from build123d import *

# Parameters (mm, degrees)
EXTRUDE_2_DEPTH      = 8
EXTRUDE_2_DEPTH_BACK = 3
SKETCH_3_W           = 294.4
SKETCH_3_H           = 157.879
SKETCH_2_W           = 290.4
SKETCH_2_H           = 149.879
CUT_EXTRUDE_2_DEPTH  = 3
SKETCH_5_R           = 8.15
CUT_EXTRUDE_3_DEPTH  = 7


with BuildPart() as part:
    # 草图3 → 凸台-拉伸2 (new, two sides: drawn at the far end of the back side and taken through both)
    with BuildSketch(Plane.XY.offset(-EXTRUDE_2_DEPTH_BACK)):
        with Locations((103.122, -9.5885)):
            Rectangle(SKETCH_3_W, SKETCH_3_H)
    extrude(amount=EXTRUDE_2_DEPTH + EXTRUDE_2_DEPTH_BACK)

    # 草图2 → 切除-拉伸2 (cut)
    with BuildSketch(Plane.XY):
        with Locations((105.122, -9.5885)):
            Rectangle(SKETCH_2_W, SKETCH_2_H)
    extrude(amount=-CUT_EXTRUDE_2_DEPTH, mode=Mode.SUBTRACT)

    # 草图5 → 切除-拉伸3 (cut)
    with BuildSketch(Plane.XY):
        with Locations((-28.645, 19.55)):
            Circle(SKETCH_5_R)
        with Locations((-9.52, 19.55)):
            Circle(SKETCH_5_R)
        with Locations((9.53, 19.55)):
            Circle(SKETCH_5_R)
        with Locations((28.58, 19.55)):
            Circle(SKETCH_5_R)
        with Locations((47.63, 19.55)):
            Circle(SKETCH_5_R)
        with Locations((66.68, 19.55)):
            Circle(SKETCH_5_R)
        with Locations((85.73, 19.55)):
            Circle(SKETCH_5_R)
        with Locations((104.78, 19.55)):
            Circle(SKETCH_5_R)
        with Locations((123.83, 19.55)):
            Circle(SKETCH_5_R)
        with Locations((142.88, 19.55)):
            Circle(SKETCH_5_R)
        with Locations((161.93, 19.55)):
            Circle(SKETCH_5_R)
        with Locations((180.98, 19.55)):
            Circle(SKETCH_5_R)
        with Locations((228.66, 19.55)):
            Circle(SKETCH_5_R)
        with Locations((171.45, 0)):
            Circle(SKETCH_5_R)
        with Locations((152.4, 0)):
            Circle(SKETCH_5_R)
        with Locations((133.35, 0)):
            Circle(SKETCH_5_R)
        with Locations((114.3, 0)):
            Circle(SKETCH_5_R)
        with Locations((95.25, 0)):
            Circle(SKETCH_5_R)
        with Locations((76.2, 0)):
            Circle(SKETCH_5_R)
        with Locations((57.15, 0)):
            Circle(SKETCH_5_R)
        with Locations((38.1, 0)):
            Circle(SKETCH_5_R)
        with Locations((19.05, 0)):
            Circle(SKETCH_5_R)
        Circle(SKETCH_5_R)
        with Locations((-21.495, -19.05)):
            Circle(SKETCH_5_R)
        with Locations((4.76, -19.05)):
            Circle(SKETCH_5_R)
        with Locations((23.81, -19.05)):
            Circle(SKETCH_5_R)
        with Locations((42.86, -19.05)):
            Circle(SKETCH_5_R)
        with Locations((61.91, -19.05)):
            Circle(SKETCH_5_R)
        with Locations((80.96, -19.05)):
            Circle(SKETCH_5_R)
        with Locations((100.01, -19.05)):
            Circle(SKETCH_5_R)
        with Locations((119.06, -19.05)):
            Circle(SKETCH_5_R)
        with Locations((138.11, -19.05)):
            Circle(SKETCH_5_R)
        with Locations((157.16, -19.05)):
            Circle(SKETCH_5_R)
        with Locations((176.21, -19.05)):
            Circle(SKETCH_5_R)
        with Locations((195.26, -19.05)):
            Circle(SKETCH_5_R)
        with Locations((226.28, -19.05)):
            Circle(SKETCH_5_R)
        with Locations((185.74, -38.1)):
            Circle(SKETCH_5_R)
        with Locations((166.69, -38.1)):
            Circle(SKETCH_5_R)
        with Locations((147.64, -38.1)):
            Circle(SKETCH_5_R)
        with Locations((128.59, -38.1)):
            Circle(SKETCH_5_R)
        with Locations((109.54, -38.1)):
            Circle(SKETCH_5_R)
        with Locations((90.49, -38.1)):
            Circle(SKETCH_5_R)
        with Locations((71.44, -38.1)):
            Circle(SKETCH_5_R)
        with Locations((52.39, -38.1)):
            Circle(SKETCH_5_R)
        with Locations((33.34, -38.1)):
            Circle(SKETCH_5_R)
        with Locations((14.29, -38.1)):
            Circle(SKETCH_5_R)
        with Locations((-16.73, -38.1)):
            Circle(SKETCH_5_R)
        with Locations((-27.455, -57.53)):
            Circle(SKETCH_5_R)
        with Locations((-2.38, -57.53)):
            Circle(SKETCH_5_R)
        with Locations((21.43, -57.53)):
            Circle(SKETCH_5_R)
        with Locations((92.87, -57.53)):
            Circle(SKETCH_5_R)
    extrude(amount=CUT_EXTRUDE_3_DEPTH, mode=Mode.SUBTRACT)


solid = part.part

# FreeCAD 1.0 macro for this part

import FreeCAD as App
import Part
import Sketcher

V = App.Vector

doc = App.newDocument("Part")
body = doc.addObject("PartDesign::Body", "Body")

# Sketch on XY plane
sketch1 = doc.addObject("Sketcher::SketchObject", "Sketch")
body.addObject(sketch1)
sketch1.AttachmentSupport = (doc.XY_Plane, [""])
sketch1.MapMode = "FlatFace"
sketch1.addGeometry([
    Part.LineSegment(V(-44, 69, 0), V(-44, -89, 0)),
    Part.LineSegment(V(-44, -89, 0), V(250, -89, 0)),
    Part.LineSegment(V(250, -89, 0), V(250, 69, 0)),
    Part.LineSegment(V(250, 69, 0), V(-44, 69, 0)),
], False)
sketch1.addConstraint([
    Sketcher.Constraint("Coincident", 0, 2, 1, 1),
    Sketcher.Constraint("Coincident", 1, 2, 2, 1),
    Sketcher.Constraint("Coincident", 2, 2, 3, 1),
    Sketcher.Constraint("Coincident", 3, 2, 0, 1),
    Sketcher.Constraint("Vertical", 0),
    Sketcher.Constraint("Horizontal", 1),
    Sketcher.Constraint("Vertical", 2),
    Sketcher.Constraint("Horizontal", 3),
    Sketcher.Constraint("DistanceX", 1, 1, 1, 2, 294.4),
    Sketcher.Constraint("DistanceY", 0, 2, 0, 1, 157.879),
    Sketcher.Constraint("DistanceX", 0, 2, -1, 1, 44.078),
    Sketcher.Constraint("DistanceY", 0, 2, -1, 1, 88.528),
])
pad1 = doc.addObject("PartDesign::Pad", "Pad")
body.addObject(pad1)
pad1.Profile = sketch1
pad1.Type = "TwoLengths"
pad1.Length = 8
pad1.Length2 = 3

# Sketch on XY plane
sketch2 = doc.addObject("Sketcher::SketchObject", "Sketch001")
body.addObject(sketch2)
sketch2.AttachmentSupport = (doc.XY_Plane, [""])
sketch2.MapMode = "FlatFace"
sketch2.addGeometry([
    Part.LineSegment(V(-40, 65, 0), V(-40, -85, 0)),
    Part.LineSegment(V(-40, -85, 0), V(250, -85, 0)),
    Part.LineSegment(V(250, -85, 0), V(250, 65, 0)),
    Part.LineSegment(V(250, 65, 0), V(-40, 65, 0)),
], False)
sketch2.addConstraint([
    Sketcher.Constraint("Coincident", 0, 2, 1, 1),
    Sketcher.Constraint("Coincident", 1, 2, 2, 1),
    Sketcher.Constraint("Coincident", 2, 2, 3, 1),
    Sketcher.Constraint("Coincident", 3, 2, 0, 1),
    Sketcher.Constraint("Vertical", 0),
    Sketcher.Constraint("Horizontal", 1),
    Sketcher.Constraint("Vertical", 2),
    Sketcher.Constraint("Horizontal", 3),
    Sketcher.Constraint("DistanceX", 1, 1, 1, 2, 290.4),
    Sketcher.Constraint("DistanceY", 0, 2, 0, 1, 149.879),
    Sketcher.Constraint("DistanceX", 0, 2, -1, 1, 40.078),
    Sketcher.Constraint("DistanceY", 0, 2, -1, 1, 84.528),
])
pocket1 = doc.addObject("PartDesign::Pocket", "Pocket")
body.addObject(pocket1)
pocket1.Profile = sketch2
pocket1.Length = 3

# Sketch on XY plane
sketch3 = doc.addObject("Sketcher::SketchObject", "Sketch002")
body.addObject(sketch3)
sketch3.AttachmentSupport = (doc.XY_Plane, [""])
sketch3.MapMode = "FlatFace"
sketch3.addGeometry([
    Part.Circle(V(-29, 20, 0), V(0, 0, 1), 8),  # 0
    Part.Circle(V(-10, 20, 0), V(0, 0, 1), 8),  # 1
    Part.Circle(V(10, 20, 0), V(0, 0, 1), 8),  # 2
    Part.Circle(V(29, 20, 0), V(0, 0, 1), 8),  # 3
    Part.Circle(V(48, 20, 0), V(0, 0, 1), 8),  # 4
    Part.Circle(V(67, 20, 0), V(0, 0, 1), 8),  # 5
    Part.Circle(V(86, 20, 0), V(0, 0, 1), 8),  # 6
    Part.Circle(V(105, 20, 0), V(0, 0, 1), 8),  # 7
    Part.Circle(V(124, 20, 0), V(0, 0, 1), 8),  # 8
    Part.Circle(V(143, 20, 0), V(0, 0, 1), 8),  # 9
    Part.Circle(V(162, 20, 0), V(0, 0, 1), 8),  # 10
    Part.Circle(V(181, 20, 0), V(0, 0, 1), 8),  # 11
    Part.Circle(V(229, 20, 0), V(0, 0, 1), 8),  # 12
    Part.Circle(V(171, 0, 0), V(0, 0, 1), 8),  # 13
    Part.Circle(V(152, 0, 0), V(0, 0, 1), 8),  # 14
    Part.Circle(V(133, 0, 0), V(0, 0, 1), 8),  # 15
    Part.Circle(V(114, 0, 0), V(0, 0, 1), 8),  # 16
    Part.Circle(V(95, 0, 0), V(0, 0, 1), 8),  # 17
    Part.Circle(V(76, 0, 0), V(0, 0, 1), 8),  # 18
    Part.Circle(V(57, 0, 0), V(0, 0, 1), 8),  # 19
    Part.Circle(V(38, 0, 0), V(0, 0, 1), 8),  # 20
    Part.Circle(V(19, 0, 0), V(0, 0, 1), 8),  # 21
    Part.Circle(V(0, 0, 0), V(0, 0, 1), 8),  # 22
    Part.Circle(V(-21, -19, 0), V(0, 0, 1), 8),  # 23
    Part.Circle(V(5, -19, 0), V(0, 0, 1), 8),  # 24
    Part.Circle(V(24, -19, 0), V(0, 0, 1), 8),  # 25
    Part.Circle(V(43, -19, 0), V(0, 0, 1), 8),  # 26
    Part.Circle(V(62, -19, 0), V(0, 0, 1), 8),  # 27
    Part.Circle(V(81, -19, 0), V(0, 0, 1), 8),  # 28
    Part.Circle(V(100, -19, 0), V(0, 0, 1), 8),  # 29
    Part.Circle(V(119, -19, 0), V(0, 0, 1), 8),  # 30
    Part.Circle(V(138, -19, 0), V(0, 0, 1), 8),  # 31
    Part.Circle(V(157, -19, 0), V(0, 0, 1), 8),  # 32
    Part.Circle(V(176, -19, 0), V(0, 0, 1), 8),  # 33
    Part.Circle(V(195, -19, 0), V(0, 0, 1), 8),  # 34
    Part.Circle(V(226, -19, 0), V(0, 0, 1), 8),  # 35
    Part.Circle(V(186, -38, 0), V(0, 0, 1), 8),  # 36
    Part.Circle(V(167, -38, 0), V(0, 0, 1), 8),  # 37
    Part.Circle(V(148, -38, 0), V(0, 0, 1), 8),  # 38
    Part.Circle(V(129, -38, 0), V(0, 0, 1), 8),  # 39
    Part.Circle(V(110, -38, 0), V(0, 0, 1), 8),  # 40
    Part.Circle(V(90, -38, 0), V(0, 0, 1), 8),  # 41
    Part.Circle(V(71, -38, 0), V(0, 0, 1), 8),  # 42
    Part.Circle(V(52, -38, 0), V(0, 0, 1), 8),  # 43
    Part.Circle(V(33, -38, 0), V(0, 0, 1), 8),  # 44
    Part.Circle(V(14, -38, 0), V(0, 0, 1), 8),  # 45
    Part.Circle(V(-17, -38, 0), V(0, 0, 1), 8),  # 46
    Part.Circle(V(-27, -58, 0), V(0, 0, 1), 8),  # 47
    Part.Circle(V(-2, -58, 0), V(0, 0, 1), 8),  # 48
    Part.Circle(V(21, -58, 0), V(0, 0, 1), 8),  # 49
    Part.Circle(V(93, -58, 0), V(0, 0, 1), 8),  # 50
], False)
sketch3.addConstraint([
    Sketcher.Constraint("Coincident", 22, 3, -1, 1),
    Sketcher.Constraint("Equal", 0, 1),
    Sketcher.Constraint("Equal", 1, 2),
    Sketcher.Constraint("Equal", 2, 3),
    Sketcher.Constraint("Equal", 3, 4),
    Sketcher.Constraint("Equal", 4, 5),
    Sketcher.Constraint("Equal", 5, 6),
    Sketcher.Constraint("Equal", 6, 7),
    Sketcher.Constraint("Equal", 7, 8),
    Sketcher.Constraint("Equal", 8, 9),
    Sketcher.Constraint("Equal", 9, 10),
    Sketcher.Constraint("Equal", 10, 11),
    Sketcher.Constraint("Equal", 11, 12),
    Sketcher.Constraint("Equal", 12, 13),
    Sketcher.Constraint("Equal", 13, 14),
    Sketcher.Constraint("Equal", 14, 15),
    Sketcher.Constraint("Equal", 15, 16),
    Sketcher.Constraint("Equal", 16, 17),
    Sketcher.Constraint("Equal", 17, 18),
    Sketcher.Constraint("Equal", 18, 19),
    Sketcher.Constraint("Equal", 19, 20),
    Sketcher.Constraint("Equal", 20, 21),
    Sketcher.Constraint("Equal", 21, 22),
    Sketcher.Constraint("Equal", 22, 23),
    Sketcher.Constraint("Equal", 23, 24),
    Sketcher.Constraint("Equal", 24, 25),
    Sketcher.Constraint("Equal", 25, 26),
    Sketcher.Constraint("Equal", 26, 27),
    Sketcher.Constraint("Equal", 27, 28),
    Sketcher.Constraint("Equal", 28, 29),
    Sketcher.Constraint("Equal", 29, 30),
    Sketcher.Constraint("Equal", 30, 31),
    Sketcher.Constraint("Equal", 31, 32),
    Sketcher.Constraint("Equal", 32, 33),
    Sketcher.Constraint("Equal", 33, 34),
    Sketcher.Constraint("Equal", 34, 35),
    Sketcher.Constraint("Equal", 35, 36),
    Sketcher.Constraint("Equal", 36, 37),
    Sketcher.Constraint("Equal", 37, 38),
    Sketcher.Constraint("Equal", 38, 39),
    Sketcher.Constraint("Equal", 39, 40),
    Sketcher.Constraint("Equal", 40, 41),
    Sketcher.Constraint("Equal", 41, 42),
    Sketcher.Constraint("Equal", 42, 43),
    Sketcher.Constraint("Equal", 43, 44),
    Sketcher.Constraint("Equal", 44, 45),
    Sketcher.Constraint("Equal", 45, 46),
    Sketcher.Constraint("Equal", 46, 47),
    Sketcher.Constraint("Equal", 47, 48),
    Sketcher.Constraint("Equal", 48, 49),
    Sketcher.Constraint("Equal", 49, 50),
    Sketcher.Constraint("PointOnObject", 13, 3, -1),
    Sketcher.Constraint("PointOnObject", 14, 3, -1),
    Sketcher.Constraint("PointOnObject", 15, 3, -1),
    Sketcher.Constraint("PointOnObject", 16, 3, -1),
    Sketcher.Constraint("PointOnObject", 17, 3, -1),
    Sketcher.Constraint("PointOnObject", 18, 3, -1),
    Sketcher.Constraint("PointOnObject", 19, 3, -1),
    Sketcher.Constraint("PointOnObject", 20, 3, -1),
    Sketcher.Constraint("PointOnObject", 21, 3, -1),
    Sketcher.Constraint("Horizontal", 0, 3, 1, 3),
    Sketcher.Constraint("Horizontal", 1, 3, 2, 3),
    Sketcher.Constraint("Horizontal", 2, 3, 3, 3),
    Sketcher.Constraint("Horizontal", 3, 3, 4, 3),
    Sketcher.Constraint("Horizontal", 4, 3, 5, 3),
    Sketcher.Constraint("Horizontal", 5, 3, 6, 3),
    Sketcher.Constraint("Horizontal", 6, 3, 7, 3),
    Sketcher.Constraint("Horizontal", 7, 3, 8, 3),
    Sketcher.Constraint("Horizontal", 8, 3, 9, 3),
    Sketcher.Constraint("Horizontal", 9, 3, 10, 3),
    Sketcher.Constraint("Horizontal", 10, 3, 11, 3),
    Sketcher.Constraint("Horizontal", 11, 3, 12, 3),
    Sketcher.Constraint("Horizontal", 23, 3, 24, 3),
    Sketcher.Constraint("Horizontal", 24, 3, 25, 3),
    Sketcher.Constraint("Horizontal", 25, 3, 26, 3),
    Sketcher.Constraint("Horizontal", 26, 3, 27, 3),
    Sketcher.Constraint("Horizontal", 27, 3, 28, 3),
    Sketcher.Constraint("Horizontal", 28, 3, 29, 3),
    Sketcher.Constraint("Horizontal", 29, 3, 30, 3),
    Sketcher.Constraint("Horizontal", 30, 3, 31, 3),
    Sketcher.Constraint("Horizontal", 31, 3, 32, 3),
    Sketcher.Constraint("Horizontal", 32, 3, 33, 3),
    Sketcher.Constraint("Horizontal", 33, 3, 34, 3),
    Sketcher.Constraint("Horizontal", 34, 3, 35, 3),
    Sketcher.Constraint("Horizontal", 36, 3, 37, 3),
    Sketcher.Constraint("Horizontal", 37, 3, 38, 3),
    Sketcher.Constraint("Horizontal", 38, 3, 39, 3),
    Sketcher.Constraint("Horizontal", 39, 3, 40, 3),
    Sketcher.Constraint("Horizontal", 40, 3, 41, 3),
    Sketcher.Constraint("Horizontal", 41, 3, 42, 3),
    Sketcher.Constraint("Horizontal", 42, 3, 43, 3),
    Sketcher.Constraint("Horizontal", 43, 3, 44, 3),
    Sketcher.Constraint("Horizontal", 44, 3, 45, 3),
    Sketcher.Constraint("Horizontal", 45, 3, 46, 3),
    Sketcher.Constraint("Horizontal", 47, 3, 48, 3),
    Sketcher.Constraint("Horizontal", 48, 3, 49, 3),
    Sketcher.Constraint("Horizontal", 49, 3, 50, 3),
    Sketcher.Constraint("Diameter", 0, 16.3),
    Sketcher.Constraint("DistanceX", -1, 1, 14, 3, 152.4),
    Sketcher.Constraint("DistanceX", -1, 1, 16, 3, 114.3),
    Sketcher.Constraint("DistanceX", -1, 1, 18, 3, 76.2),
    Sketcher.Constraint("DistanceX", -1, 1, 20, 3, 38.1),
    Sketcher.Constraint("DistanceY", 36, 3, -1, 1, 38.1),
    Sketcher.Constraint("DistanceX", 1, 3, 3, 3, 38.1),
    Sketcher.Constraint("DistanceX", 2, 3, 4, 3, 38.1),
    Sketcher.Constraint("DistanceX", 3, 3, 5, 3, 38.1),
    Sketcher.Constraint("DistanceX", 4, 3, 6, 3, 38.1),
    Sketcher.Constraint("DistanceX", 5, 3, 7, 3, 38.1),
    Sketcher.Constraint("DistanceX", 6, 3, 8, 3, 38.1),
    Sketcher.Constraint("DistanceX", 7, 3, 9, 3, 38.1),
    Sketcher.Constraint("DistanceX", 8, 3, 10, 3, 38.1),
    Sketcher.Constraint("DistanceX", 9, 3, 11, 3, 38.1),
    Sketcher.Constraint("DistanceY", 23, 3, 0, 3, 38.6),
    Sketcher.Constraint("DistanceX", 24, 3, 26, 3, 38.1),
    Sketcher.Constraint("DistanceX", 25, 3, 27, 3, 38.1),
    Sketcher.Constraint("DistanceX", 26, 3, 28, 3, 38.1),
    Sketcher.Constraint("DistanceX", 27, 3, 29, 3, 38.1),
    Sketcher.Constraint("DistanceX", 28, 3, 30, 3, 38.1),
    Sketcher.Constraint("DistanceX", 29, 3, 31, 3, 38.1),
    Sketcher.Constraint("DistanceX", 30, 3, 32, 3, 38.1),
    Sketcher.Constraint("DistanceX", 31, 3, 33, 3, 38.1),
    Sketcher.Constraint("DistanceX", 32, 3, 34, 3, 38.1),
    Sketcher.Constraint("DistanceX", 11, 3, 35, 3, 45.3),
    Sketcher.Constraint("DistanceX", 45, 3, 43, 3, 38.1),
    Sketcher.Constraint("DistanceY", -1, 1, 0, 3, 19.55),
    Sketcher.Constraint("DistanceX", 1, 3, -1, 1, 9.52),
    Sketcher.Constraint("DistanceX", -1, 1, 2, 3, 9.53),
    Sketcher.Constraint("DistanceX", -1, 1, 12, 3, 228.66),
    Sketcher.Constraint("DistanceX", -1, 1, 13, 3, 171.45),
    Sketcher.Constraint("DistanceX", -1, 1, 15, 3, 133.35),
    Sketcher.Constraint("DistanceX", -1, 1, 17, 3, 95.25),
    Sketcher.Constraint("DistanceX", -1, 1, 19, 3, 57.15),
    Sketcher.Constraint("DistanceX", -1, 1, 21, 3, 19.05),
    Sketcher.Constraint("DistanceX", -1, 1, 24, 3, 4.76),
    Sketcher.Constraint("DistanceX", -1, 1, 25, 3, 23.81),
    Sketcher.Constraint("DistanceX", -1, 1, 36, 3, 185.74),
    Sketcher.Constraint("DistanceX", -1, 1, 37, 3, 166.69),
    Sketcher.Constraint("DistanceX", -1, 1, 38, 3, 147.64),
    Sketcher.Constraint("DistanceX", -1, 1, 39, 3, 128.59),
    Sketcher.Constraint("DistanceX", -1, 1, 40, 3, 109.54),
    Sketcher.Constraint("DistanceX", -1, 1, 41, 3, 90.49),
    Sketcher.Constraint("DistanceX", -1, 1, 42, 3, 71.44),
    Sketcher.Constraint("DistanceX", -1, 1, 43, 3, 52.39),
    Sketcher.Constraint("DistanceX", -1, 1, 44, 3, 33.34),
    Sketcher.Constraint("DistanceX", 46, 3, -1, 1, 16.73),
    Sketcher.Constraint("DistanceY", 47, 3, -1, 1, 57.53),
    Sketcher.Constraint("DistanceX", 48, 3, -1, 1, 2.38),
    Sketcher.Constraint("DistanceX", -1, 1, 49, 3, 21.43),
    Sketcher.Constraint("DistanceX", -1, 1, 50, 3, 92.87),
    Sketcher.Constraint("DistanceX", 0, 3, 23, 3, 7.15),
    Sketcher.Constraint("DistanceX", 47, 3, 23, 3, 5.96),
    Sketcher.Constraint("DistanceX", 0, 3, -1, 1, 28.645),
])
pocket2 = doc.addObject("PartDesign::Pocket", "Pocket001")
body.addObject(pocket2)
pocket2.Profile = sketch3
pocket2.Length = 7
pocket2.Reversed = True

doc.recompute()
